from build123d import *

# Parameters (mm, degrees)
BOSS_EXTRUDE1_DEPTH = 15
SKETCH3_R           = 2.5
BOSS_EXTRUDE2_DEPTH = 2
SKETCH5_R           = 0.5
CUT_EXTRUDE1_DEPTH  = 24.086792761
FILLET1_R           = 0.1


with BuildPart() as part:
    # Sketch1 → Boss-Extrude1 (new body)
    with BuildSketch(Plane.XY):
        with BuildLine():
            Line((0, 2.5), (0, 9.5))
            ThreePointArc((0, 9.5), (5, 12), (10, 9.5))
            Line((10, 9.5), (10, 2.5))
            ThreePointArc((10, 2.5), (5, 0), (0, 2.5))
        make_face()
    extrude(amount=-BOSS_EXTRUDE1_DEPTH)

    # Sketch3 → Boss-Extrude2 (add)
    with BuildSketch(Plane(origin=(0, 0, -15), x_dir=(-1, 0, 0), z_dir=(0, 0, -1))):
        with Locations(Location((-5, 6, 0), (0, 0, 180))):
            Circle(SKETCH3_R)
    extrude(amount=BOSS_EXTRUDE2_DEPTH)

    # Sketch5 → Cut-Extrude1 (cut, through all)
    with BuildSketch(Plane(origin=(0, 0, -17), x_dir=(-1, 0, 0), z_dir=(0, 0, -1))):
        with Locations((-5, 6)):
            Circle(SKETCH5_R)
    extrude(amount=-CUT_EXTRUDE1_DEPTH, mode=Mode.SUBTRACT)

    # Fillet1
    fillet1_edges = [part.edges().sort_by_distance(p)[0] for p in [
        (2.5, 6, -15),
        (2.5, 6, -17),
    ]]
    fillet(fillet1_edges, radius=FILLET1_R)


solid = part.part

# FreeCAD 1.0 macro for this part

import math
import FreeCAD as App
import Part
import Sketcher
Q = App.Units.Quantity


def edges_at(feature, points):
    """Names of the edges that pass closest to the given points."""
    edges = feature.Shape.Edges
    near = lambda p: min(range(len(edges)), key=lambda i: edges[i].distToShape(Part.Vertex(*p))[0])
    return sorted({f"Edge{near(p) + 1}" for p in points})

doc = App.newDocument("Part")
body = doc.addObject("PartDesign::Body", "Body")

# Sketch on XY plane
sketch1 = body.newObject("Sketcher::SketchObject", "Sketch")
sketch1.AttachmentSupport = (doc.getObject("XY_Plane"), [""])
sketch1.MapMode = "FlatFace"
sketch1.addGeometry([
    Part.LineSegment(App.Vector(0, 10, 0), App.Vector(0, 2, 0)),
    Part.ArcOfCircle(Part.Circle(App.Vector(5, 6, 0), App.Vector(0, 0, 1), 6), math.radians(-143), math.radians(-37)),
    Part.LineSegment(App.Vector(10, 2, 0), App.Vector(10, 10, 0)),
    Part.ArcOfCircle(Part.Circle(App.Vector(5, 6, 0), App.Vector(0, 0, 1), 6), math.radians(37), math.radians(143)),
], False)
sketch1.addConstraint([
    Sketcher.Constraint("Coincident", 0, 2, 1, 1),
    Sketcher.Constraint("Coincident", 1, 2, 2, 1),
    Sketcher.Constraint("Coincident", 2, 2, 3, 1),
    Sketcher.Constraint("Coincident", 3, 2, 0, 1),
    Sketcher.Constraint("Vertical", 0),
    Sketcher.Constraint("Vertical", 2),
    Sketcher.Constraint("Equal", 1, 3),
    Sketcher.Constraint("PointOnObject", 0, 2, -2),
    Sketcher.Constraint("Horizontal", 0, 2, 1, 2),
    Sketcher.Constraint("Horizontal", 2, 2, 3, 2),
    Sketcher.Constraint("DistanceY", 0, 2, 0, 1, Q("7 mm")),
    Sketcher.Constraint("Radius", 1, Q("6.25 mm")),
    Sketcher.Constraint("DistanceX", -1, 1, 1, 3, Q("5 mm")),
    Sketcher.Constraint("DistanceY", -1, 1, 0, 2, Q("2.5 mm")),
])
pad1 = body.newObject("PartDesign::Pad", "Pad")
pad1.Profile = sketch1
pad1.Length = 15
pad1.Reversed = True

# Sketch on XY plane
sketch2 = body.newObject("Sketcher::SketchObject", "Sketch001")
sketch2.AttachmentSupport = (doc.getObject("XY_Plane"), [""])
sketch2.MapMode = "FlatFace"
sketch2.AttachmentOffset = App.Placement(App.Vector(0, 0, -15), App.Rotation())
sketch2.addGeometry(Part.Circle(App.Vector(5, 6, 0), App.Vector(0, 0, 1), 2.5), False)
sketch2.addConstraint([
    Sketcher.Constraint("Diameter", 0, Q("5 mm")),
    Sketcher.Constraint("DistanceX", -1, 1, 0, 3, Q("5 mm")),
    Sketcher.Constraint("DistanceY", -1, 1, 0, 3, Q("6 mm")),
])
pad2 = body.newObject("PartDesign::Pad", "Pad001")
pad2.Profile = sketch2
pad2.Length = 2
pad2.Reversed = True

# Sketch on XY plane
sketch3 = body.newObject("Sketcher::SketchObject", "Sketch002")
sketch3.AttachmentSupport = (doc.getObject("XY_Plane"), [""])
sketch3.MapMode = "FlatFace"
sketch3.AttachmentOffset = App.Placement(App.Vector(0, 0, -17), App.Rotation())
sketch3.addGeometry(Part.Circle(App.Vector(5, 6, 0), App.Vector(0, 0, 1), 0.5), False)
sketch3.addConstraint([
    Sketcher.Constraint("Diameter", 0, Q("1 mm")),
    Sketcher.Constraint("DistanceX", -1, 1, 0, 3, Q("5 mm")),
    Sketcher.Constraint("DistanceY", -1, 1, 0, 3, Q("6 mm")),
])
pocket1 = body.newObject("PartDesign::Pocket", "Pocket")
pocket1.Profile = sketch3
pocket1.Type = "ThroughAll"
pocket1.Reversed = True
doc.recompute()

fillet = body.newObject("PartDesign::Fillet", "Fillet")
fillet.Base = (pocket1, edges_at(pocket1, [(2.5, 6, -15), (2.5, 6, -17)]))
fillet.Radius = 0.1

doc.recompute()
